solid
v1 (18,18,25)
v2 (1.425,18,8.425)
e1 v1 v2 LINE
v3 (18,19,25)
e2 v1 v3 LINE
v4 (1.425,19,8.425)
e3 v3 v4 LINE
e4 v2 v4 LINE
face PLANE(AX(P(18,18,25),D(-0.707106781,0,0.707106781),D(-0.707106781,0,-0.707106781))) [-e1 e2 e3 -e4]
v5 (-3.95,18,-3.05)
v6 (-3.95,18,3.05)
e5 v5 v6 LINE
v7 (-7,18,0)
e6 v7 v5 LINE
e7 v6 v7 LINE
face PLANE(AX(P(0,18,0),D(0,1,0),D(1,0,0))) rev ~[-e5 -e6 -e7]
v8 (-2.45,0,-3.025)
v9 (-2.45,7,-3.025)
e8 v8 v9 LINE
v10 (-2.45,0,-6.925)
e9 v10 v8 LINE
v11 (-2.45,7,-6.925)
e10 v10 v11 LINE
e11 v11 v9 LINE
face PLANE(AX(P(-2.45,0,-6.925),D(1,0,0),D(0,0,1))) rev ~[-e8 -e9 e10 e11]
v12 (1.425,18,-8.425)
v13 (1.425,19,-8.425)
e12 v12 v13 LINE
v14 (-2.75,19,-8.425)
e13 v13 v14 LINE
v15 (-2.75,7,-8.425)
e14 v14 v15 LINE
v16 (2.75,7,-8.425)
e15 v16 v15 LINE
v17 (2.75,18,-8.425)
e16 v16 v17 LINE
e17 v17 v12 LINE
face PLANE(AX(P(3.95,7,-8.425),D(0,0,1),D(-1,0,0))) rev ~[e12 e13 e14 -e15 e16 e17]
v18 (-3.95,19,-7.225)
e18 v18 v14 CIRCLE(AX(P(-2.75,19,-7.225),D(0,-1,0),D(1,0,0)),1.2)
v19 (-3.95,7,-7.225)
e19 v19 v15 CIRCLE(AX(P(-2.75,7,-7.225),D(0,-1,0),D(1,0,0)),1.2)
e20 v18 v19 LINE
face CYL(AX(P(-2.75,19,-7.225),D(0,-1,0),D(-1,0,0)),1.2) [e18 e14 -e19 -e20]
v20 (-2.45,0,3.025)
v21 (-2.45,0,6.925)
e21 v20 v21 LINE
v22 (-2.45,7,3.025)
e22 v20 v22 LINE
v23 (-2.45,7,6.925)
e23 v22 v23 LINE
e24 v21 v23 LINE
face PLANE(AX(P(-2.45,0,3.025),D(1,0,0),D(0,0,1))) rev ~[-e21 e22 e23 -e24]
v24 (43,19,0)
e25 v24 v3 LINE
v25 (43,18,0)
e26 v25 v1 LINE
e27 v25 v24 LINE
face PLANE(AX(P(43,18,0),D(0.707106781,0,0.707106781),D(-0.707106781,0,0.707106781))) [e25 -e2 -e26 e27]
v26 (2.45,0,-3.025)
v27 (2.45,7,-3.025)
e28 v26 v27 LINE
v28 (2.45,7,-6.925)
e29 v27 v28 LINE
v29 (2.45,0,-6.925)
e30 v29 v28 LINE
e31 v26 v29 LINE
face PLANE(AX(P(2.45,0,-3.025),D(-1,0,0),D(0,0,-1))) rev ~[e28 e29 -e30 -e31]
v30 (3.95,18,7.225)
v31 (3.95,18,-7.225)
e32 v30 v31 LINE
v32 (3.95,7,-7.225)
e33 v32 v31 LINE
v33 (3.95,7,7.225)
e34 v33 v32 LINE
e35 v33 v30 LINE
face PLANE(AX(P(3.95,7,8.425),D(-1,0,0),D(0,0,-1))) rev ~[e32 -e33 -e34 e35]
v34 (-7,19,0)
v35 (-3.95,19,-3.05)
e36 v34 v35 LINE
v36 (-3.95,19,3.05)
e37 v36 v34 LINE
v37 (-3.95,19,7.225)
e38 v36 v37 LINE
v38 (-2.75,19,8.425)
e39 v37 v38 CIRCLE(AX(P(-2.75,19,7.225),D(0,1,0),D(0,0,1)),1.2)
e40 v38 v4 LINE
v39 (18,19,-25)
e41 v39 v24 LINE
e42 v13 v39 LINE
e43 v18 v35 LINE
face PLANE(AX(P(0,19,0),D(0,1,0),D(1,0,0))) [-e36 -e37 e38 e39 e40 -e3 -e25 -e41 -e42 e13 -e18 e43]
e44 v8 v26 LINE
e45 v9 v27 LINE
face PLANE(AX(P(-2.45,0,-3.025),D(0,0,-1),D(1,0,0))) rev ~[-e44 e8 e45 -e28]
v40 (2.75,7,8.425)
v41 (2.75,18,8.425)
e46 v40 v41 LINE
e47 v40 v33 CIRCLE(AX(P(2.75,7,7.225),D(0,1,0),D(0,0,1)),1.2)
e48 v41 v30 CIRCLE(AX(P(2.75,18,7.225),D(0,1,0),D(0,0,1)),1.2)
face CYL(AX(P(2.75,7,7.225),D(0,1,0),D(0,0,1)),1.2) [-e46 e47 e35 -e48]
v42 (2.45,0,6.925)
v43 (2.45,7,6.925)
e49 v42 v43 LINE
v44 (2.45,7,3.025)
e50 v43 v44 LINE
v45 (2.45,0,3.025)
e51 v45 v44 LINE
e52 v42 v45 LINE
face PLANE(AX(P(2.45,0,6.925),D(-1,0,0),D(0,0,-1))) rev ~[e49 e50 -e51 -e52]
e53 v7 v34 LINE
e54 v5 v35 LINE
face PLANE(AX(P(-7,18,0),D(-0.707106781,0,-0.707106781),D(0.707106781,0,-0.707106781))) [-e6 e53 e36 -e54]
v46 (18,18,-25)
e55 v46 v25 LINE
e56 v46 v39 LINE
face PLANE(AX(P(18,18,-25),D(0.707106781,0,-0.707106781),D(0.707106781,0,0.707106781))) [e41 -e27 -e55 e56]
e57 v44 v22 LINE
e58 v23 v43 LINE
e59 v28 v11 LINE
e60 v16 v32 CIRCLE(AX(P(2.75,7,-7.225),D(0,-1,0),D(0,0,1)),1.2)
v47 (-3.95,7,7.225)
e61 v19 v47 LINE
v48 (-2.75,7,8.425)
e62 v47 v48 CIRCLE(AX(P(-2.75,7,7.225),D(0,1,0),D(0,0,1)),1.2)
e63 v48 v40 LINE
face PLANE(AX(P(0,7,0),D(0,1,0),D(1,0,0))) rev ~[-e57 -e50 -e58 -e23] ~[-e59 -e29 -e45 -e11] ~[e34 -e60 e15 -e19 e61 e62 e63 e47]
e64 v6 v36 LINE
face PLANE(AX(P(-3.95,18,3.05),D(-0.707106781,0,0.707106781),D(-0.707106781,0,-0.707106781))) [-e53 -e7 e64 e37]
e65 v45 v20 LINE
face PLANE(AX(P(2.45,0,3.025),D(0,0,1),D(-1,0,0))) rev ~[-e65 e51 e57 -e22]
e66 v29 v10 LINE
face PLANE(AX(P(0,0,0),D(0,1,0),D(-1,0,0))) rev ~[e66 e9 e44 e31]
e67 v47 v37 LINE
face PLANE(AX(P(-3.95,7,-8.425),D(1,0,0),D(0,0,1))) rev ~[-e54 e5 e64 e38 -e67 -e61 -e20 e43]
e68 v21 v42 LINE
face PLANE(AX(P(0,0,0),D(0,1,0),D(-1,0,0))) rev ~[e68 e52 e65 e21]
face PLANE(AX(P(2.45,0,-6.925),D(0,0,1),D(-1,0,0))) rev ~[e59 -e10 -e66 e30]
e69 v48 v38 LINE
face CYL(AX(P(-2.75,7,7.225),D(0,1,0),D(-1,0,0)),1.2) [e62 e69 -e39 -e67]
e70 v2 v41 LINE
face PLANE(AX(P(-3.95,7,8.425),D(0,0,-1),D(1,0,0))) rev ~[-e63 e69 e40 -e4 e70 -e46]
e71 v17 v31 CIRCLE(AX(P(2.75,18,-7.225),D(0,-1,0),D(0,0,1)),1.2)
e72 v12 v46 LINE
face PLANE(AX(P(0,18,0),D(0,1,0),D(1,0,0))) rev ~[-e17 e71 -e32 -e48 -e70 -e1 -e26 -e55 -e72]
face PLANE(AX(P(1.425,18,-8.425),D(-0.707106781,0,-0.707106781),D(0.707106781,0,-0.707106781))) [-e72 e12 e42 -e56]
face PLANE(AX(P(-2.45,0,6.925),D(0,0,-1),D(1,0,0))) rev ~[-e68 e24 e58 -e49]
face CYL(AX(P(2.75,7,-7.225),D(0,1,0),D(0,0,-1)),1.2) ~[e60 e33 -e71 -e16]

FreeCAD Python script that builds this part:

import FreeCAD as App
import Part
import Sketcher

V = App.Vector
Q = App.Units.Quantity


def edges_at(feature, points):
    """Names of the edges that pass closest to the given points."""
    edges = feature.Shape.Edges
    near = lambda p: min(range(len(edges)), key=lambda i: edges[i].distToShape(Part.Vertex(*p))[0])
    return sorted({f"Edge{near(p) + 1}" for p in points})

doc = App.newDocument("Part")
body = doc.addObject("PartDesign::Body", "Body")
body.AllowCompound = True

# Sketch on XZ plane
sketch1 = doc.addObject("Sketcher::SketchObject", "Sketch")
body.addObject(sketch1)
sketch1.AttachmentSupport = (doc.XZ_Plane, [""])
sketch1.MapMode = "FlatFace"
sketch1.addGeometry(Part.LineSegment(V(-2.5, 3, 0), V(-2.5, 6.9, 0)), False)
sketch1.addGeometry(Part.LineSegment(V(-2.5, 6.9, 0), V(2.5, 6.9, 0)), False)
sketch1.addGeometry(Part.LineSegment(V(2.5, 6.9, 0), V(2.5, 3, 0)), False)
sketch1.addGeometry(Part.LineSegment(V(2.5, 3, 0), V(-2.5, 3, 0)), False)
sketch1.addGeometry(Part.LineSegment(V(-2.5, -6.9, 0), V(-2.5, -3, 0)), False)
sketch1.addGeometry(Part.LineSegment(V(-2.5, -3, 0), V(2.5, -3, 0)), False)
sketch1.addGeometry(Part.LineSegment(V(2.5, -3, 0), V(2.5, -6.9, 0)), False)
sketch1.addGeometry(Part.LineSegment(V(2.5, -6.9, 0), V(-2.5, -6.9, 0)), False)
sketch1.addConstraint(Sketcher.Constraint("Coincident", 0, 2, 1, 1))
sketch1.addConstraint(Sketcher.Constraint("Coincident", 1, 2, 2, 1))
sketch1.addConstraint(Sketcher.Constraint("Coincident", 2, 2, 3, 1))
sketch1.addConstraint(Sketcher.Constraint("Coincident", 3, 2, 0, 1))
sketch1.addConstraint(Sketcher.Constraint("Coincident", 4, 2, 5, 1))
sketch1.addConstraint(Sketcher.Constraint("Coincident", 5, 2, 6, 1))
sketch1.addConstraint(Sketcher.Constraint("Coincident", 6, 2, 7, 1))
sketch1.addConstraint(Sketcher.Constraint("Coincident", 7, 2, 4, 1))
sketch1.addConstraint(Sketcher.Constraint("Vertical", 0))
sketch1.addConstraint(Sketcher.Constraint("Horizontal", 1))
sketch1.addConstraint(Sketcher.Constraint("Vertical", 2))
sketch1.addConstraint(Sketcher.Constraint("Horizontal", 3))
sketch1.addConstraint(Sketcher.Constraint("Vertical", 4))
sketch1.addConstraint(Sketcher.Constraint("Horizontal", 5))
sketch1.addConstraint(Sketcher.Constraint("Vertical", 6))
sketch1.addConstraint(Sketcher.Constraint("Horizontal", 7))
sketch1.addConstraint(Sketcher.Constraint("Symmetric", 2, 2, 4, 2, -1, 1))
sketch1.addConstraint(Sketcher.Constraint("Symmetric", 0, 2, 6, 2, -1, 1))
sketch1.addConstraint(Sketcher.Constraint("Vertical", 3, 2, 4, 2))
sketch1.addConstraint(Sketcher.Constraint("DistanceX", 1, 1, 1, 2, Q("4.9 mm")))
sketch1.addConstraint(Sketcher.Constraint("DistanceY", 0, 1, 0, 2, Q("3.9 mm")))
sketch1.addConstraint(Sketcher.Constraint("DistanceY", 4, 2, 3, 2, Q("6.05 mm")))
pad1 = doc.addObject("PartDesign::Pad", "Pad")
body.addObject(pad1)
pad1.Profile = sketch1
pad1.Length = 7
pad1.Reversed = True

# Sketch on XZ plane
sketch2 = doc.addObject("Sketcher::SketchObject", "Sketch001")
body.addObject(sketch2)
sketch2.AttachmentSupport = (doc.XZ_Plane, [""])
sketch2.MapMode = "FlatFace"
sketch2.AttachmentOffset = App.Placement(V(0, 0, -7), App.Rotation())
sketch2.addGeometry(Part.LineSegment(V(-4, -8, 0), V(-4, 8, 0)), False)
sketch2.addGeometry(Part.LineSegment(V(-4, 8, 0), V(4, 8, 0)), False)
sketch2.addGeometry(Part.LineSegment(V(4, 8, 0), V(4, -8, 0)), False)
sketch2.addGeometry(Part.LineSegment(V(4, -8, 0), V(-4, -8, 0)), False)
sketch2.addConstraint(Sketcher.Constraint("Coincident", 0, 2, 1, 1))
sketch2.addConstraint(Sketcher.Constraint("Coincident", 1, 2, 2, 1))
sketch2.addConstraint(Sketcher.Constraint("Coincident", 2, 2, 3, 1))
sketch2.addConstraint(Sketcher.Constraint("Coincident", 3, 2, 0, 1))
sketch2.addConstraint(Sketcher.Constraint("Vertical", 0))
sketch2.addConstraint(Sketcher.Constraint("Horizontal", 1))
sketch2.addConstraint(Sketcher.Constraint("Vertical", 2))
sketch2.addConstraint(Sketcher.Constraint("Horizontal", 3))
sketch2.addConstraint(Sketcher.Constraint("Symmetric", 0, 2, 2, 2, -1, 1))
sketch2.addConstraint(Sketcher.Constraint("DistanceX", 1, 1, 1, 2, Q("7.9 mm")))
sketch2.addConstraint(Sketcher.Constraint("DistanceY", 0, 1, 0, 2, Q("16.85 mm")))
pad2 = doc.addObject("PartDesign::Pad", "Pad001")
body.addObject(pad2)
pad2.Profile = sketch2
pad2.Length = 11
pad2.Reversed = True

# Sketch on XZ plane
sketch3 = doc.addObject("Sketcher::SketchObject", "Sketch002")
body.addObject(sketch3)
sketch3.AttachmentSupport = (doc.XZ_Plane, [""])
sketch3.MapMode = "FlatFace"
sketch3.AttachmentOffset = App.Placement(V(0, 0, -18), App.Rotation())
sketch3.addGeometry(Part.LineSegment(V(-4, 3, 0), V(-4, 8.4, 0)), False)
sketch3.addGeometry(Part.LineSegment(V(-4, 8.4, 0), V(1.4, 8.4, 0)), False)
sketch3.addGeometry(Part.LineSegment(V(1.4, 8.4, 0), V(18, 25, 0)), False)
sketch3.addGeometry(Part.LineSegment(V(18, 25, 0), V(43, 0, 0)), False)
sketch3.addGeometry(Part.LineSegment(V(43, 0, 0), V(18, -25, 0)), False)
sketch3.addGeometry(Part.LineSegment(V(18, -25, 0), V(1.4, -8.4, 0)), False)
sketch3.addGeometry(Part.LineSegment(V(1.4, -8.4, 0), V(-4, -8.4, 0)), False)
sketch3.addGeometry(Part.LineSegment(V(-4, -8.4, 0), V(-4, -3, 0)), False)
sketch3.addGeometry(Part.LineSegment(V(-4, -3, 0), V(-7, 0, 0)), False)
sketch3.addGeometry(Part.LineSegment(V(-7, 0, 0), V(-4, 3, 0)), False)
sketch3.addConstraint(Sketcher.Constraint("Coincident", 0, 2, 1, 1))
sketch3.addConstraint(Sketcher.Constraint("Coincident", 1, 2, 2, 1))
sketch3.addConstraint(Sketcher.Constraint("Coincident", 2, 2, 3, 1))
sketch3.addConstraint(Sketcher.Constraint("Coincident", 3, 2, 4, 1))
sketch3.addConstraint(Sketcher.Constraint("Coincident", 4, 2, 5, 1))
sketch3.addConstraint(Sketcher.Constraint("Coincident", 5, 2, 6, 1))
sketch3.addConstraint(Sketcher.Constraint("Coincident", 6, 2, 7, 1))
sketch3.addConstraint(Sketcher.Constraint("Coincident", 7, 2, 8, 1))
sketch3.addConstraint(Sketcher.Constraint("Coincident", 8, 2, 9, 1))
sketch3.addConstraint(Sketcher.Constraint("Coincident", 9, 2, 0, 1))
sketch3.addConstraint(Sketcher.Constraint("Vertical", 0))
sketch3.addConstraint(Sketcher.Constraint("Horizontal", 1))
sketch3.addConstraint(Sketcher.Constraint("Horizontal", 6))
sketch3.addConstraint(Sketcher.Constraint("Vertical", 7))
sketch3.addConstraint(Sketcher.Constraint("Symmetric", 2, 2, 4, 2, -1))
sketch3.addConstraint(Sketcher.Constraint("Symmetric", 1, 2, 5, 2, -1))
sketch3.addConstraint(Sketcher.Constraint("Symmetric", 7, 2, 9, 2, -1))
sketch3.addConstraint(Sketcher.Constraint("PointOnObject", 3, 2, -1))
sketch3.addConstraint(Sketcher.Constraint("PointOnObject", 8, 2, -1))
sketch3.addConstraint(Sketcher.Constraint("Perpendicular", 2, 3))
sketch3.addConstraint(Sketcher.Constraint("Perpendicular", 3, 4))
sketch3.addConstraint(Sketcher.Constraint("Parallel", 5, 8))
sketch3.addConstraint(Sketcher.Constraint("Equal", 6, 0))
sketch3.addConstraint(Sketcher.Constraint("DistanceY", -1, 1, 2, 2, Q("25 mm")))
sketch3.addConstraint(Sketcher.Constraint("DistanceX", 8, 2, -1, 1, Q("7 mm")))
sketch3.addConstraint(Sketcher.Constraint("DistanceX", 0, 2, -1, 1, Q("3.95 mm")))
sketch3.addConstraint(Sketcher.Constraint("DistanceX", 1, 1, 1, 2, Q("5.375 mm")))
pad3 = doc.addObject("PartDesign::Pad", "Pad002")
body.addObject(pad3)
pad3.Profile = sketch3
pad3.Length = 1
pad3.Reversed = True
doc.recompute()

fillet = doc.addObject("PartDesign::Fillet", "Fillet")
body.addObject(fillet)
fillet.Base = (pad3, edges_at(pad3, [
    (-3.95, 13, 8.425),
    (3.95, 12.5, 8.425),
    (3.95, 12.5, -8.425),
    (-3.95, 13, -8.425),
]))
fillet.Radius = 1.2

doc.recompute()
